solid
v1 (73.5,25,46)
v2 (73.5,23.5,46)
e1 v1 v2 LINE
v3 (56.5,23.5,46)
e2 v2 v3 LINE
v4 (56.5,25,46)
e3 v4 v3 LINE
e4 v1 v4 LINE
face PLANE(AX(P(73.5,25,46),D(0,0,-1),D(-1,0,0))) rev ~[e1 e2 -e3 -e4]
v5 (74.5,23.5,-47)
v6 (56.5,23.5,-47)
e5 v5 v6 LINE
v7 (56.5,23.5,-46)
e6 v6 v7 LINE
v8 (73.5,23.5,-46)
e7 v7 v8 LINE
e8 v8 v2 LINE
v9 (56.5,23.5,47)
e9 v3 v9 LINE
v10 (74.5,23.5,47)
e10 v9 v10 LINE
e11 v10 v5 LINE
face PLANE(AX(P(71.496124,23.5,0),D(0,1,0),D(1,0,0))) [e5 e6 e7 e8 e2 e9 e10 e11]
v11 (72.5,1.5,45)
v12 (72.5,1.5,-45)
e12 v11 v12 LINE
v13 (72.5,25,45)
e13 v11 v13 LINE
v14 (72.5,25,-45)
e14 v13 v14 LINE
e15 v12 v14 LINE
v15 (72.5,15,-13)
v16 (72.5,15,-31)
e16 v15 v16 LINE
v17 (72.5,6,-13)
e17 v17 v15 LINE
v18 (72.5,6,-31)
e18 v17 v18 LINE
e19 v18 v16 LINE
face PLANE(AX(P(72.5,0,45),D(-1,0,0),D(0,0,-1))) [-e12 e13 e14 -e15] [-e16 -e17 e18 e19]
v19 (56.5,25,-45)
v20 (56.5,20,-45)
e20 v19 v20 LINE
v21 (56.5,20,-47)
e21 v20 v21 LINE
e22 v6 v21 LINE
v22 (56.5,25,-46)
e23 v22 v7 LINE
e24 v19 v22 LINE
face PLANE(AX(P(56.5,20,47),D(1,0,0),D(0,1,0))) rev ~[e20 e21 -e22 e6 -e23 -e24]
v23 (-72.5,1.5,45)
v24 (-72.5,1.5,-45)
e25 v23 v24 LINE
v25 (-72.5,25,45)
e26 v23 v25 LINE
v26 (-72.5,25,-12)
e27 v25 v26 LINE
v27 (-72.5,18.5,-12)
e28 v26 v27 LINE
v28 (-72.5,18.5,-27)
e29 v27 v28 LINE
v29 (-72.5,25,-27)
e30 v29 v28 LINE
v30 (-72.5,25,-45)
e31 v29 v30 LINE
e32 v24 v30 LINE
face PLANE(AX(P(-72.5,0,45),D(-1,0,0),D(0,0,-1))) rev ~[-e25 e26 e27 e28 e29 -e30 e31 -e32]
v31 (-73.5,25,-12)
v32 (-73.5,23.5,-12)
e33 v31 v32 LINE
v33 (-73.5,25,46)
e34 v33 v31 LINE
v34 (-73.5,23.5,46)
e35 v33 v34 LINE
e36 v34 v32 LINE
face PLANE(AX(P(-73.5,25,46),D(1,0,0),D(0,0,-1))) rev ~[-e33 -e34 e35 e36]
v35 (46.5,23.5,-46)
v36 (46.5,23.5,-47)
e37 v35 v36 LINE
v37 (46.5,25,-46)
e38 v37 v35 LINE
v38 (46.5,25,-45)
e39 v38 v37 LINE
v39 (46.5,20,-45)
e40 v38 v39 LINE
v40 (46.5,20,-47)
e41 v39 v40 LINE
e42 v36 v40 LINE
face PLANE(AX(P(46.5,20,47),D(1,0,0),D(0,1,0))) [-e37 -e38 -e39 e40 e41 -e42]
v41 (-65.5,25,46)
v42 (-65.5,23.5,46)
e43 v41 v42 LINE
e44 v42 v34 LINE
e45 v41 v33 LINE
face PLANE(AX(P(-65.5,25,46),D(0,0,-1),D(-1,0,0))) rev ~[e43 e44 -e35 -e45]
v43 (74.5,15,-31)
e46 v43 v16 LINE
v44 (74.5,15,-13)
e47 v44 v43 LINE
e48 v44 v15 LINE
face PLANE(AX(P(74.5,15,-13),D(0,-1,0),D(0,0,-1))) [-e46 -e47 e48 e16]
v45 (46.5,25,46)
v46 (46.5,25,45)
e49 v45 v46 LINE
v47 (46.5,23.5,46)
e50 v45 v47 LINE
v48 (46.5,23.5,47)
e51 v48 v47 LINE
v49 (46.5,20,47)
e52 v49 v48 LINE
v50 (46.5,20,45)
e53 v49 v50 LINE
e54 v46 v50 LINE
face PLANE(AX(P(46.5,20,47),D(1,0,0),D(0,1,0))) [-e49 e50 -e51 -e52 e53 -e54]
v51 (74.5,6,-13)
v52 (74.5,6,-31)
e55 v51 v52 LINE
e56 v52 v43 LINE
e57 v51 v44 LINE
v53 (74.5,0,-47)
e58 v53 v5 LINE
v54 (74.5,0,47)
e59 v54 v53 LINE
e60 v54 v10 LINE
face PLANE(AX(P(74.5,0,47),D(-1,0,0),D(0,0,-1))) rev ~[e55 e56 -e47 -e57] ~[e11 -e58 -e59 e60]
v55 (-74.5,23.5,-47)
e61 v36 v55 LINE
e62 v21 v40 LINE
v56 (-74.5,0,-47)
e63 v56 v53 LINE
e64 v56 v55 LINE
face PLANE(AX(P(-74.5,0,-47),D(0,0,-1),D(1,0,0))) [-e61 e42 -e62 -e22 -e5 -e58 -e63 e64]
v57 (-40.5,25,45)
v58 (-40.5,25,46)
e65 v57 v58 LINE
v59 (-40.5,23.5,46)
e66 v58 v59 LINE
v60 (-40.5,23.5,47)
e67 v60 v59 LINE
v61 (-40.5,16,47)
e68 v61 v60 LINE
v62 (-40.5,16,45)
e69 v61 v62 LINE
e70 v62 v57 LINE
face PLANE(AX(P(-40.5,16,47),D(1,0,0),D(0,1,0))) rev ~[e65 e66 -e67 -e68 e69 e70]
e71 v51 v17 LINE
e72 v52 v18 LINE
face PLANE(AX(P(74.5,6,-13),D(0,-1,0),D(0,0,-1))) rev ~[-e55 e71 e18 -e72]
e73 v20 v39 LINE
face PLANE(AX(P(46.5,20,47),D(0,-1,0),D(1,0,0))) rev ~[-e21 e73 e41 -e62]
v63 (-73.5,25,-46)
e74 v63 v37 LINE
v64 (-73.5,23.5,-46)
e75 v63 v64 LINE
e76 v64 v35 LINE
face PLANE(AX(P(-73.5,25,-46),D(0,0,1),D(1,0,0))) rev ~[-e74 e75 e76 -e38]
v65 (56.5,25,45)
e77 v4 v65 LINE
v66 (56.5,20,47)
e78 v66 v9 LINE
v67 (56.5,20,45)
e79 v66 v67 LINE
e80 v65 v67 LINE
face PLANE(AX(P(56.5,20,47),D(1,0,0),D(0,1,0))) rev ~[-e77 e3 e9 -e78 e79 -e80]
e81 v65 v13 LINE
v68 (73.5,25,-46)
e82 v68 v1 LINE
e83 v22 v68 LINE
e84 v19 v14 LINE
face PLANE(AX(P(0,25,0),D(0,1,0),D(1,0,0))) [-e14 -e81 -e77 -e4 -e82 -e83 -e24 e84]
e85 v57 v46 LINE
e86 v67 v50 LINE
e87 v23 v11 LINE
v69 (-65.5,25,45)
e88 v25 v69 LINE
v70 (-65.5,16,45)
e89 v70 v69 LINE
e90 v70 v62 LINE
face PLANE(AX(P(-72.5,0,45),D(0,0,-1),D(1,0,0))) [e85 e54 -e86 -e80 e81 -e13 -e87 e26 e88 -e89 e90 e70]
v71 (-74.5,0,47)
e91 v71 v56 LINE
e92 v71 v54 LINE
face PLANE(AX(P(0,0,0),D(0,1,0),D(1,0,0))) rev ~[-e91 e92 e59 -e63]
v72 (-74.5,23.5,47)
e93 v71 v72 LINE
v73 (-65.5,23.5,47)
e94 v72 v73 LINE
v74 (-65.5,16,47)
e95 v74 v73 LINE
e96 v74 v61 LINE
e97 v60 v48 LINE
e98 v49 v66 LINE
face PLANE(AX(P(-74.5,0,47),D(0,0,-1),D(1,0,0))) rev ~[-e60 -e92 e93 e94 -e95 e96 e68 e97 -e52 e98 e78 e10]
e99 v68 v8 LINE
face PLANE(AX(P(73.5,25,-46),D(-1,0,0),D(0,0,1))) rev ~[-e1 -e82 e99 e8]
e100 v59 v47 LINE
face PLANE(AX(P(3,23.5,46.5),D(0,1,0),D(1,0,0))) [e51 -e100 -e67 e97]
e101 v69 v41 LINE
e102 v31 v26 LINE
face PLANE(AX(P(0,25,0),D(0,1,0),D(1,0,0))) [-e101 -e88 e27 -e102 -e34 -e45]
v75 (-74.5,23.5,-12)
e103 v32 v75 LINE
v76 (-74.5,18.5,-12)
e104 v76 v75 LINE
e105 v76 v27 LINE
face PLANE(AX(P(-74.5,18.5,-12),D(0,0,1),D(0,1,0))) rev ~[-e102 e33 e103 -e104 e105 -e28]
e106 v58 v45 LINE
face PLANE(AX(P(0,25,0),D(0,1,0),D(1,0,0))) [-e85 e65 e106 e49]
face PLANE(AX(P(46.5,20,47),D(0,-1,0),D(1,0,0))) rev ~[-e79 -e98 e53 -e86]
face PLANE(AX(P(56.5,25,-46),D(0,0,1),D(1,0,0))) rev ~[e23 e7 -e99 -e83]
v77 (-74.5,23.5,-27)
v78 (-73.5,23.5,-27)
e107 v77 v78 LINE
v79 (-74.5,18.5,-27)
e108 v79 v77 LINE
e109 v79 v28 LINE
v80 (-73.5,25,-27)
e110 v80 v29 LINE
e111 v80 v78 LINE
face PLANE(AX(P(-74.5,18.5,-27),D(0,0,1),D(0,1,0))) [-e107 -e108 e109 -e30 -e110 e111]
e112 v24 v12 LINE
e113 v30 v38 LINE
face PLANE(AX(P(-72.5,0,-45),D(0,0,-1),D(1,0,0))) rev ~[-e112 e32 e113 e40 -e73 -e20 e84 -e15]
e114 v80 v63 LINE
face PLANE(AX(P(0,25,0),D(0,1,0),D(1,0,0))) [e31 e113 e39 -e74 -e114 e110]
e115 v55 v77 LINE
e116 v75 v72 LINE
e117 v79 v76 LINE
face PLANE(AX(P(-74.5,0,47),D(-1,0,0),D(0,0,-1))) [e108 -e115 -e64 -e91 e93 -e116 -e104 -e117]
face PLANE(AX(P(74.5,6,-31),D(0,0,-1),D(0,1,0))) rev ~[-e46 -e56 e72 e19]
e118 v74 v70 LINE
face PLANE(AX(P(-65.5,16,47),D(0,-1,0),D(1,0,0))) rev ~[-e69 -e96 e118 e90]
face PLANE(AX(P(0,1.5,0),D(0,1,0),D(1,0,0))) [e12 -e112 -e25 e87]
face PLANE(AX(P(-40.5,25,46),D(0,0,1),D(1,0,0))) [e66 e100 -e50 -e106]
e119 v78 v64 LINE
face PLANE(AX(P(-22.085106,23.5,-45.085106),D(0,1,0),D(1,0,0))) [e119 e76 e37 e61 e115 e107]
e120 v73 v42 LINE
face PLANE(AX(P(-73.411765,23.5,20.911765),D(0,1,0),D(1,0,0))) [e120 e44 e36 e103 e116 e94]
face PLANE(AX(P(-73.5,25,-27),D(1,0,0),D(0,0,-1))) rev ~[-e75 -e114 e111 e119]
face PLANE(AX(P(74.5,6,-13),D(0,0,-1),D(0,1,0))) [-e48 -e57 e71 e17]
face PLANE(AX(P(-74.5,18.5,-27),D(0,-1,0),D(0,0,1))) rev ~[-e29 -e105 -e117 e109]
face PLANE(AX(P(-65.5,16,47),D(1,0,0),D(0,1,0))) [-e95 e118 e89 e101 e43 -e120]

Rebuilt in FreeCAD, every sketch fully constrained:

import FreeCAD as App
import Part
import Sketcher

V = App.Vector
Q = App.Units.Quantity


def add_polygon(sketch, points):
    """Adds a closed chain of lines whose ends are joined by coincident constraints."""
    first, n = sketch.GeometryCount, len(points)
    for a, b in zip(points, points[1:] + points[:1]):
        sketch.addGeometry(Part.LineSegment(App.Vector(*a, 0), App.Vector(*b, 0)), False)
    for i in range(n):
        sketch.addConstraint(Sketcher.Constraint("Coincident", first + i, 2, first + (i + 1) % n, 1))

doc = App.newDocument("Part")
params = doc.addObject("Spreadsheet::Sheet", "Params")
for row, (alias, value) in enumerate([
    ("sketch1_width", "145 mm"),
    ("sketch1_height", "90 mm"),
    ("pad1_length", "1.5 mm"),
    ("sketch2_width", "149 mm"),
    ("sketch2_width2", "145 mm"),
    ("sketch2_height", "94 mm"),
    ("sketch2_height2", "90 mm"),
    ("pad2_length", "25 mm"),
    ("sketch3_width", "25 mm"),
    ("sketch3_height", "15 mm"),
    ("sketch4_width", "9 mm"),
    ("sketch4_height", "18 mm"),
    ("sketch5_width", "10 mm"),
    ("sketch5_height", "5 mm"),
    ("sketch6_height", "15 mm"),
    ("sketch6_width", "6.5 mm"),
    ("sketch7_width", "1 mm"),
    ("sketch7_width2", "9 mm"),
    ("sketch7_width3", "120 mm"),
    ("sketch7_width4", "18 mm"),
    ("sketch7_width5", "87 mm"),
    ("pocket5_length", "1.5 mm"),
], start=1):
    params.set(f"A{row}", alias)
    params.set(f"B{row}", "=" + value)
    params.setAlias(f"B{row}", alias)

body = doc.addObject("PartDesign::Body", "Body")

sketch1 = body.newObject("Sketcher::SketchObject", "Sketch")
sketch1.AttachmentSupport = (doc.getObject("XZ_Plane"), [""])
sketch1.MapMode = "FlatFace"
add_polygon(sketch1, [(-72, -45), (-72, 45), (72, 45), (72, -45)])
sketch1.addConstraint([
    Sketcher.Constraint("Vertical", 0),
    Sketcher.Constraint("Horizontal", 1),
    Sketcher.Constraint("Vertical", 2),
    Sketcher.Constraint("Horizontal", 3),
    Sketcher.Constraint("Symmetric", 0, 2, 2, 2, -1, 1),
    Sketcher.Constraint("DistanceX", 1, 1, 1, 2, Q("145 mm")),
    Sketcher.Constraint("DistanceY", 0, 1, 0, 2, Q("90 mm")),
])
sketch1.setExpression("Constraints[9]", "Params.sketch1_width")
sketch1.setExpression("Constraints[10]", "Params.sketch1_height")
pad1 = body.newObject("PartDesign::Pad", "Pad")
pad1.Profile = sketch1
pad1.setExpression("Length", "Params.pad1_length")
pad1.Reversed = True

sketch2 = body.newObject("Sketcher::SketchObject", "Sketch001")
sketch2.AttachmentSupport = (doc.getObject("XZ_Plane"), [""])
sketch2.MapMode = "FlatFace"
add_polygon(sketch2, [(-74, -47), (-74, 47), (74, 47), (74, -47)])
add_polygon(sketch2, [(72, 45), (-72, 45), (-72, -45), (72, -45)])
sketch2.addConstraint([
    Sketcher.Constraint("Vertical", 0),
    Sketcher.Constraint("Horizontal", 1),
    Sketcher.Constraint("Vertical", 2),
    Sketcher.Constraint("Horizontal", 3),
    Sketcher.Constraint("Horizontal", 4),
    Sketcher.Constraint("Vertical", 5),
    Sketcher.Constraint("Horizontal", 6),
    Sketcher.Constraint("Vertical", 7),
    Sketcher.Constraint("Symmetric", 0, 2, 2, 2, -1, 1),
    Sketcher.Constraint("Symmetric", 4, 2, 6, 2, -1, 1),
    Sketcher.Constraint("DistanceX", 1, 1, 1, 2, Q("149 mm")),
    Sketcher.Constraint("DistanceX", 4, 2, 4, 1, Q("145 mm")),
    Sketcher.Constraint("DistanceY", 0, 1, 0, 2, Q("94 mm")),
    Sketcher.Constraint("DistanceY", 5, 2, 5, 1, Q("90 mm")),
])
sketch2.setExpression("Constraints[18]", "Params.sketch2_width")
sketch2.setExpression("Constraints[19]", "Params.sketch2_width2")
sketch2.setExpression("Constraints[20]", "Params.sketch2_height")
sketch2.setExpression("Constraints[21]", "Params.sketch2_height2")
pad2 = body.newObject("PartDesign::Pad", "Pad001")
pad2.Profile = sketch2
pad2.setExpression("Length", "Params.pad2_length")
pad2.Reversed = True

sketch3 = body.newObject("Sketcher::SketchObject", "Sketch002")
sketch3.AttachmentSupport = (doc.getObject("XY_Plane"), [""])
sketch3.MapMode = "FlatFace"
sketch3.AttachmentOffset = App.Placement(V(0, 0, 47), App.Rotation())
add_polygon(sketch3, [(-66, 31), (-66, 16), (-40, 16), (-40, 31)])
sketch3.addConstraint([
    Sketcher.Constraint("Vertical", 0),
    Sketcher.Constraint("Horizontal", 1),
    Sketcher.Constraint("Vertical", 2),
    Sketcher.Constraint("Horizontal", 3),
    Sketcher.Constraint("DistanceX", 1, 1, 1, 2, Q("25 mm")),
    Sketcher.Constraint("DistanceY", 0, 2, 0, 1, Q("15 mm")),
    Sketcher.Constraint("DistanceY", -1, 1, 0, 2, Q("16 mm")),
    Sketcher.Constraint("DistanceX", 0, 2, -1, 1, Q("65.5 mm")),
])
sketch3.setExpression("Constraints[8]", "Params.sketch3_width")
sketch3.setExpression("Constraints[9]", "Params.sketch3_height")
pocket1 = body.newObject("PartDesign::Pocket", "Pocket")
pocket1.Profile = sketch3
pocket1.Type = "UpToFirst"

sketch4 = body.newObject("Sketcher::SketchObject", "Sketch003")
sketch4.AttachmentSupport = (doc.getObject("YZ_Plane"), [""])
sketch4.MapMode = "FlatFace"
sketch4.AttachmentOffset = App.Placement(V(0, 0, 74.5), App.Rotation())
add_polygon(sketch4, [(15, -13), (6, -13), (6, -31), (15, -31)])
sketch4.addConstraint([
    Sketcher.Constraint("Horizontal", 0),
    Sketcher.Constraint("Vertical", 1),
    Sketcher.Constraint("Horizontal", 2),
    Sketcher.Constraint("Vertical", 3),
    Sketcher.Constraint("DistanceX", 0, 2, 0, 1, Q("9 mm")),
    Sketcher.Constraint("DistanceY", 1, 2, 1, 1, Q("18 mm")),
    Sketcher.Constraint("DistanceX", -1, 1, 0, 2, Q("6 mm")),
    Sketcher.Constraint("DistanceY", 0, 2, -1, 1, Q("13 mm")),
])
sketch4.setExpression("Constraints[8]", "Params.sketch4_width")
sketch4.setExpression("Constraints[9]", "Params.sketch4_height")
pocket2 = body.newObject("PartDesign::Pocket", "Pocket001")
pocket2.Profile = sketch4
pocket2.Type = "UpToFirst"

sketch5 = body.newObject("Sketcher::SketchObject", "Sketch004")
sketch5.AttachmentSupport = (doc.getObject("XY_Plane"), [""])
sketch5.MapMode = "FlatFace"
sketch5.AttachmentOffset = App.Placement(V(0, 0, 47), App.Rotation())
add_polygon(sketch5, [(46, 25), (46, 20), (56, 20), (56, 25)])
sketch5.addConstraint([
    Sketcher.Constraint("Vertical", 0),
    Sketcher.Constraint("Horizontal", 1),
    Sketcher.Constraint("Vertical", 2),
    Sketcher.Constraint("Horizontal", 3),
    Sketcher.Constraint("DistanceX", 1, 1, 1, 2, Q("10 mm")),
    Sketcher.Constraint("DistanceY", 0, 2, 0, 1, Q("5 mm")),
    Sketcher.Constraint("DistanceY", -1, 1, 0, 2, Q("20 mm")),
    Sketcher.Constraint("DistanceX", -1, 1, 0, 2, Q("46.5 mm")),
])
sketch5.setExpression("Constraints[8]", "Params.sketch5_width")
sketch5.setExpression("Constraints[9]", "Params.sketch5_height")
pocket3 = body.newObject("PartDesign::Pocket", "Pocket002")
pocket3.Profile = sketch5
pocket3.Type = "ThroughAll"

sketch6 = body.newObject("Sketcher::SketchObject", "Sketch005")
sketch6.AttachmentSupport = (doc.getObject("YZ_Plane"), [""])
sketch6.MapMode = "FlatFace"
sketch6.AttachmentOffset = App.Placement(V(0, 0, -74.5), App.Rotation())
add_polygon(sketch6, [(25, -27), (18, -27), (18, -12), (25, -12)])
sketch6.addConstraint([
    Sketcher.Constraint("Horizontal", 0),
    Sketcher.Constraint("Vertical", 1),
    Sketcher.Constraint("Horizontal", 2),
    Sketcher.Constraint("Vertical", 3),
    Sketcher.Constraint("DistanceY", 1, 1, 1, 2, Q("15 mm")),
    Sketcher.Constraint("DistanceX", 0, 2, 0, 1, Q("6.5 mm")),
    Sketcher.Constraint("DistanceY", 0, 2, -1, 1, Q("27 mm")),
    Sketcher.Constraint("DistanceX", -1, 1, 2, 2, Q("25 mm")),
])
sketch6.setExpression("Constraints[8]", "Params.sketch6_height")
sketch6.setExpression("Constraints[9]", "Params.sketch6_width")
pocket4 = body.newObject("PartDesign::Pocket", "Pocket003")
pocket4.Profile = sketch6
pocket4.Type = "UpToFirst"
pocket4.Reversed = True

sketch7 = body.newObject("Sketcher::SketchObject", "Sketch006")
sketch7.AttachmentSupport = (doc.getObject("XZ_Plane"), [""])
sketch7.MapMode = "FlatFace"
sketch7.AttachmentOffset = App.Placement(V(0, 0, -25), App.Rotation())
add_polygon(sketch7, [(-73.5, -12), (-74.5, -12), (-74.5, 47), (-65.5, 47), (-65.5, 46), (-73.5, 46)])
add_polygon(sketch7, [(-74.5, -27), (-73.5, -27), (-73.5, -46), (46.5, -46), (46.5, -47), (-74.5, -47)])
add_polygon(sketch7, [(56.5, 46), (56.5, 47), (74.5, 47), (74.5, -47), (56.5, -47), (56.5, -46), (73.5, -46), (73.5, 46)])
add_polygon(sketch7, [(-40.5, 46), (-40.5, 47), (46.5, 47), (46.5, 46)])
sketch7.addConstraint([
    Sketcher.Constraint("Horizontal", 0),
    Sketcher.Constraint("Vertical", 1),
    Sketcher.Constraint("Horizontal", 2),
    Sketcher.Constraint("Vertical", 3),
    Sketcher.Constraint("Horizontal", 4),
    Sketcher.Constraint("Vertical", 5),
    Sketcher.Constraint("Horizontal", 6),
    Sketcher.Constraint("Vertical", 7),
    Sketcher.Constraint("Horizontal", 8),
    Sketcher.Constraint("Vertical", 9),
    Sketcher.Constraint("Horizontal", 10),
    Sketcher.Constraint("Vertical", 11),
    Sketcher.Constraint("Vertical", 12),
    Sketcher.Constraint("Horizontal", 13),
    Sketcher.Constraint("Vertical", 14),
    Sketcher.Constraint("Horizontal", 15),
    Sketcher.Constraint("Vertical", 16),
    Sketcher.Constraint("Horizontal", 17),
    Sketcher.Constraint("Vertical", 18),
    Sketcher.Constraint("Horizontal", 19),
    Sketcher.Constraint("Vertical", 20),
    Sketcher.Constraint("Horizontal", 21),
    Sketcher.Constraint("Vertical", 22),
    Sketcher.Constraint("Horizontal", 23),
    Sketcher.Constraint("Symmetric", 10, 2, 13, 2, -1, 1),
    Sketcher.Constraint("Symmetric", 1, 2, 14, 2, -1, 1),
    Sketcher.Constraint("Symmetric", 4, 2, 17, 2, -1, 1),
    Sketcher.Constraint("Symmetric", 7, 2, 18, 2, -1, 1),
    Sketcher.Constraint("Symmetric", 12, 2, 15, 2, -1),
    Sketcher.Constraint("Symmetric", 9, 2, 21, 2, -1),
    Sketcher.Constraint("Horizontal", 8, 2, 16, 2),
    Sketcher.Constraint("Horizontal", 19, 2, 22, 2),
    Sketcher.Constraint("Equal", 6, 3),
    Sketcher.Constraint("DistanceX", 0, 2, 0, 1, Q("1 mm")),
    Sketcher.Constraint("DistanceX", 2, 1, 2, 2, Q("9 mm")),
    Sketcher.Constraint("DistanceX", 8, 1, 8, 2, Q("120 mm")),
    Sketcher.Constraint("DistanceX", 13, 1, 13, 2, Q("18 mm")),
    Sketcher.Constraint("DistanceX", 21, 1, 21, 2, Q("87 mm")),
    Sketcher.Constraint("DistanceY", 1, 1, 1, 2, Q("59 mm")),
    Sketcher.Constraint("DistanceY", 7, 2, 7, 1, Q("19 mm")),
    Sketcher.Constraint("DistanceY", 14, 2, 14, 1, Q("94 mm")),
    Sketcher.Constraint("DistanceX", 8, 2, 12, 2, Q("10 mm")),
])
sketch7.setExpression("Constraints[57]", "Params.sketch7_width")
sketch7.setExpression("Constraints[58]", "Params.sketch7_width2")
sketch7.setExpression("Constraints[59]", "Params.sketch7_width3")
sketch7.setExpression("Constraints[60]", "Params.sketch7_width4")
sketch7.setExpression("Constraints[61]", "Params.sketch7_width5")
pocket5 = body.newObject("PartDesign::Pocket", "Pocket004")
pocket5.Profile = sketch7
pocket5.setExpression("Length", "Params.pocket5_length")
pocket5.Reversed = True

doc.recompute()
